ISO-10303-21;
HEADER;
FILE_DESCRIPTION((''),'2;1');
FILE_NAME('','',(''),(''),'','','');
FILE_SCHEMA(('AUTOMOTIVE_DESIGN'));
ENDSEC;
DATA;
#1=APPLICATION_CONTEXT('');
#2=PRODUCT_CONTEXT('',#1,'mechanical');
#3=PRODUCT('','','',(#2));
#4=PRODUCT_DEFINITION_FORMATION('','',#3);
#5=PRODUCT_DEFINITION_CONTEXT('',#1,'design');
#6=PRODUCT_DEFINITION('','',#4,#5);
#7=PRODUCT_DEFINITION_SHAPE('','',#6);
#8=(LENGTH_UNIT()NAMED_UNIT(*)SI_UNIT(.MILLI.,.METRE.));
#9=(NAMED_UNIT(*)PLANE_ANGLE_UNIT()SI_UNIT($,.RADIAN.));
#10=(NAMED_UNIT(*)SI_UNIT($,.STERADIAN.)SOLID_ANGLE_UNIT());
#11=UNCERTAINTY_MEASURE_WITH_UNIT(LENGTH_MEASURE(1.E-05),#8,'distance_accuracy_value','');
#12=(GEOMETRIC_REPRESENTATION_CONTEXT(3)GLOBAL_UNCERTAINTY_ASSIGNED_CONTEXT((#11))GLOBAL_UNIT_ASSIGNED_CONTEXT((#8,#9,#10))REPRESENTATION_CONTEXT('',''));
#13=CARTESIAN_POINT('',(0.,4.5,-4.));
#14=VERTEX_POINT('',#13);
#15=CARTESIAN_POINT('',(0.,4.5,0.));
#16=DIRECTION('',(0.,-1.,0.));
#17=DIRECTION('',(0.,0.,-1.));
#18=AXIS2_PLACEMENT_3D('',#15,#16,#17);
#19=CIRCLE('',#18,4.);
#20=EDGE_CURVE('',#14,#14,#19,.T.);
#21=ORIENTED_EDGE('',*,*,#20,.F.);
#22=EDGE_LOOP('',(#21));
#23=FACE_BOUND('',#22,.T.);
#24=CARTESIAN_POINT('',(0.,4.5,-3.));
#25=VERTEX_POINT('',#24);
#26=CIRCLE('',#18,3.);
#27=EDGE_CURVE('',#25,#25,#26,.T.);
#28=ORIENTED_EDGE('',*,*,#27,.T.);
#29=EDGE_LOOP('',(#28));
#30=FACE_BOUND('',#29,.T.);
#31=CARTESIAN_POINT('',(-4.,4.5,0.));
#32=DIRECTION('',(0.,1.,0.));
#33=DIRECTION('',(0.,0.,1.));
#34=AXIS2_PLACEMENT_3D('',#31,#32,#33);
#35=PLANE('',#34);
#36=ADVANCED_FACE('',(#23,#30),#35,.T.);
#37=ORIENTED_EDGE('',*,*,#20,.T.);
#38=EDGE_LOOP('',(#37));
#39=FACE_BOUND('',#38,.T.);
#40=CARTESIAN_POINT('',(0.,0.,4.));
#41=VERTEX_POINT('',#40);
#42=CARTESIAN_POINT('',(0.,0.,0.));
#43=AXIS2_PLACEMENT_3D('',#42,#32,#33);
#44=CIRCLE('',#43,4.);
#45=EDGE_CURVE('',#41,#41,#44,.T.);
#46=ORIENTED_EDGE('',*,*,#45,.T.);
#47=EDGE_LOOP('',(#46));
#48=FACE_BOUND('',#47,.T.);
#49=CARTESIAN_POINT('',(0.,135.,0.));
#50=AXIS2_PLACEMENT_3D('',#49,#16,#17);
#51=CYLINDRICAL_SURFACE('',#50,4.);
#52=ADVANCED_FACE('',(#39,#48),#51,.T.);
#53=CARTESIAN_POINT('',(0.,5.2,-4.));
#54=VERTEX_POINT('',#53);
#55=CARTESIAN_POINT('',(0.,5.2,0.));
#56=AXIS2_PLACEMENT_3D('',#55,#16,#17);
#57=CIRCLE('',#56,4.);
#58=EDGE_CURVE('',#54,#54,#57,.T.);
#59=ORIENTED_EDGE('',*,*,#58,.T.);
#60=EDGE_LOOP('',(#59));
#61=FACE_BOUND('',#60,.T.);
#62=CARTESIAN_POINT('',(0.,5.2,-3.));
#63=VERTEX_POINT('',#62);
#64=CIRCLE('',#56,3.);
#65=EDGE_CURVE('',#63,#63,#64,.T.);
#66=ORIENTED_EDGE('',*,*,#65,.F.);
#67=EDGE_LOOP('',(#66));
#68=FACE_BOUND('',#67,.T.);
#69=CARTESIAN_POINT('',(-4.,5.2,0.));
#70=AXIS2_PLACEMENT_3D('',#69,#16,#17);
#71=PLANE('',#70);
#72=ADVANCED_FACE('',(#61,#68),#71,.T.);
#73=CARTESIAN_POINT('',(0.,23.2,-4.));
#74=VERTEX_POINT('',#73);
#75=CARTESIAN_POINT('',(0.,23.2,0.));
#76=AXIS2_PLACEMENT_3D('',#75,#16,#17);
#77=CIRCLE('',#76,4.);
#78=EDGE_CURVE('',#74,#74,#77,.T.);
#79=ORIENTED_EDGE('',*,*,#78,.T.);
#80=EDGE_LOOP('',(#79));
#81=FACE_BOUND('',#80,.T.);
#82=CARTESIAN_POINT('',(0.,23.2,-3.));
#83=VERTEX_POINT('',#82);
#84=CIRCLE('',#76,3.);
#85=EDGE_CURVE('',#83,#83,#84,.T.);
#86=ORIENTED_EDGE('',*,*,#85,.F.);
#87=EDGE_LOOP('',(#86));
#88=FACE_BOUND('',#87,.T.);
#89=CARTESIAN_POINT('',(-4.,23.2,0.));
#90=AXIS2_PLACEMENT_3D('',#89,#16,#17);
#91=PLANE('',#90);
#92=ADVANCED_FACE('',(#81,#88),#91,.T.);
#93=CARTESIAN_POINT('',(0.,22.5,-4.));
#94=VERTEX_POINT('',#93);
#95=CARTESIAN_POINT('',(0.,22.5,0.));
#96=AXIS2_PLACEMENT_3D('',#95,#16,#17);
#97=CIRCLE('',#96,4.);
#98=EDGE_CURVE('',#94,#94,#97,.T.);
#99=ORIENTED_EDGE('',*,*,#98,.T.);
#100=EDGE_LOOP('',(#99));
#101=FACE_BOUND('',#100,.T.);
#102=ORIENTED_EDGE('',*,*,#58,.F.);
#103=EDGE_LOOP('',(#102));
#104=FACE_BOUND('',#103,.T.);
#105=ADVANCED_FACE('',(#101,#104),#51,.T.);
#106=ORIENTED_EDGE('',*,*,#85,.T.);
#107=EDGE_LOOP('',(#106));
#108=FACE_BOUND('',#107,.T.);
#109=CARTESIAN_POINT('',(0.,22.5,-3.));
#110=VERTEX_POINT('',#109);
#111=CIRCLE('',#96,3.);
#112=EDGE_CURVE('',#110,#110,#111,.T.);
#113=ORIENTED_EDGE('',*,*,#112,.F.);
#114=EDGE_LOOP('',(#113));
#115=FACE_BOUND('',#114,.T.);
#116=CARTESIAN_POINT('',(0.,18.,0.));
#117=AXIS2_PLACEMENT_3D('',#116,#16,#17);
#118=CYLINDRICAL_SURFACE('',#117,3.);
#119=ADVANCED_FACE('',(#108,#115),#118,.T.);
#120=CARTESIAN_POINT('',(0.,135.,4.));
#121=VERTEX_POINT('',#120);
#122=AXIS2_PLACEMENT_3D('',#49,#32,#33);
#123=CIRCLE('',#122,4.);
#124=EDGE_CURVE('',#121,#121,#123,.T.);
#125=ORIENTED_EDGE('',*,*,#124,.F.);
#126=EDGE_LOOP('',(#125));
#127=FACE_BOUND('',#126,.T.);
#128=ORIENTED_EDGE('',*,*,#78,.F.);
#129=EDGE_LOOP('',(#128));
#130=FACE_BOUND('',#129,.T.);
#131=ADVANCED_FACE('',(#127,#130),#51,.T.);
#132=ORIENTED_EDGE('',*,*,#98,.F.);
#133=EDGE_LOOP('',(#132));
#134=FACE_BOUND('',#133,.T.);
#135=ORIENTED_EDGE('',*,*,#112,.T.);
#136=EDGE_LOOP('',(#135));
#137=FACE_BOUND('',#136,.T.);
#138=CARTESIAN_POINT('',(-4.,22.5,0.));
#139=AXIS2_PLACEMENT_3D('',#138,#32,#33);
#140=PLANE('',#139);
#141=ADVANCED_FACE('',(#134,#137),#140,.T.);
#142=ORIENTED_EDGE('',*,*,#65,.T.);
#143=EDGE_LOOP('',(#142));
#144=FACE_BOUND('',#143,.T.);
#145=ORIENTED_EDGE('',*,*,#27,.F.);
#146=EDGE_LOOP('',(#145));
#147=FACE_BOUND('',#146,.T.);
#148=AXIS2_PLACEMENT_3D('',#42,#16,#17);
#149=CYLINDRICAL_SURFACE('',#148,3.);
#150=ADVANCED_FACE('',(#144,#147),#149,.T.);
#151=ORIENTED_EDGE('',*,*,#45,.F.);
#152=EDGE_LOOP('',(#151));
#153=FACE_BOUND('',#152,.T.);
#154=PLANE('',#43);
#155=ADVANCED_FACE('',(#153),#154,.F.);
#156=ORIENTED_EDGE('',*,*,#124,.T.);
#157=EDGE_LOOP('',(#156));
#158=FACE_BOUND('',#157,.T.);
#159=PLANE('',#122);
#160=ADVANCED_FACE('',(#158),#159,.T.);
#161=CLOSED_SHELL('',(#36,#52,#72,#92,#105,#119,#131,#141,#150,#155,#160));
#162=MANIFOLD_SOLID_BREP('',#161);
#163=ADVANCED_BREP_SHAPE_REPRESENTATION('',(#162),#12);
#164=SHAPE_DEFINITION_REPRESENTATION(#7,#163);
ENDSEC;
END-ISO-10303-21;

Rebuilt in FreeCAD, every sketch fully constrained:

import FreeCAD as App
import Part
import Sketcher

doc = App.newDocument("Part")
body = doc.addObject("PartDesign::Body", "Body")

sketch1 = body.newObject("Sketcher::SketchObject", "Sketch")
sketch1.AttachmentSupport = (doc.getObject("XZ_Plane"), [""])
sketch1.MapMode = "FlatFace"
sketch1.addGeometry(Part.Circle(App.Vector(0, 0, 0), App.Vector(0, 0, 1), 4), False)
sketch1.addConstraint([
    Sketcher.Constraint("Coincident", 0, 3, -1, 1),
    Sketcher.Constraint("Diameter", 0, 8.0),
])
pad1 = body.newObject("PartDesign::Pad", "Pad")
pad1.Profile = sketch1
pad1.Length = 135
pad1.Reversed = True

sketch2 = body.newObject("Sketcher::SketchObject", "Sketch001")
sketch2.AttachmentSupport = (doc.getObject("XY_Plane"), [""])
sketch2.MapMode = "FlatFace"
sketch2.addGeometry([
    Part.LineSegment(App.Vector(-4, 5.2, 0), App.Vector(-4, 4.5, 0)),
    Part.LineSegment(App.Vector(-4, 4.5, 0), App.Vector(-3, 4.5, 0)),
    Part.LineSegment(App.Vector(-3, 4.5, 0), App.Vector(-3, 5.2, 0)),
    Part.LineSegment(App.Vector(-3, 5.2, 0), App.Vector(-4, 5.2, 0)),
], False)
sketch2.addConstraint([
    Sketcher.Constraint("Coincident", 0, 2, 1, 1),
    Sketcher.Constraint("Coincident", 1, 2, 2, 1),
    Sketcher.Constraint("Coincident", 2, 2, 3, 1),
    Sketcher.Constraint("Coincident", 3, 2, 0, 1),
    Sketcher.Constraint("Vertical", 0),
    Sketcher.Constraint("Horizontal", 1),
    Sketcher.Constraint("Vertical", 2),
    Sketcher.Constraint("Horizontal", 3),
    Sketcher.Constraint("DistanceX", 1, 1, 1, 2, 1.0),
    Sketcher.Constraint("DistanceY", 0, 2, 0, 1, 0.7),
    Sketcher.Constraint("DistanceX", 0, 2, -1, 1, 4.0),
    Sketcher.Constraint("DistanceY", -1, 1, 0, 2, 4.5),
])
groove = body.newObject("PartDesign::Groove", "Groove")
groove.Profile = sketch2
groove.ReferenceAxis = (sketch2, ["V_Axis"])
groove.Angle = 360
doc.recompute()

linearpattern = body.newObject("PartDesign::LinearPattern", "LinearPattern")
linearpattern.Originals = [groove]
linearpattern.Direction = (doc.getObject("Y_Axis"), [""])
linearpattern.Mode = "offset"
linearpattern.Offset = 18
linearpattern.Occurrences = 2
body.Tip = linearpattern

doc.recompute()
